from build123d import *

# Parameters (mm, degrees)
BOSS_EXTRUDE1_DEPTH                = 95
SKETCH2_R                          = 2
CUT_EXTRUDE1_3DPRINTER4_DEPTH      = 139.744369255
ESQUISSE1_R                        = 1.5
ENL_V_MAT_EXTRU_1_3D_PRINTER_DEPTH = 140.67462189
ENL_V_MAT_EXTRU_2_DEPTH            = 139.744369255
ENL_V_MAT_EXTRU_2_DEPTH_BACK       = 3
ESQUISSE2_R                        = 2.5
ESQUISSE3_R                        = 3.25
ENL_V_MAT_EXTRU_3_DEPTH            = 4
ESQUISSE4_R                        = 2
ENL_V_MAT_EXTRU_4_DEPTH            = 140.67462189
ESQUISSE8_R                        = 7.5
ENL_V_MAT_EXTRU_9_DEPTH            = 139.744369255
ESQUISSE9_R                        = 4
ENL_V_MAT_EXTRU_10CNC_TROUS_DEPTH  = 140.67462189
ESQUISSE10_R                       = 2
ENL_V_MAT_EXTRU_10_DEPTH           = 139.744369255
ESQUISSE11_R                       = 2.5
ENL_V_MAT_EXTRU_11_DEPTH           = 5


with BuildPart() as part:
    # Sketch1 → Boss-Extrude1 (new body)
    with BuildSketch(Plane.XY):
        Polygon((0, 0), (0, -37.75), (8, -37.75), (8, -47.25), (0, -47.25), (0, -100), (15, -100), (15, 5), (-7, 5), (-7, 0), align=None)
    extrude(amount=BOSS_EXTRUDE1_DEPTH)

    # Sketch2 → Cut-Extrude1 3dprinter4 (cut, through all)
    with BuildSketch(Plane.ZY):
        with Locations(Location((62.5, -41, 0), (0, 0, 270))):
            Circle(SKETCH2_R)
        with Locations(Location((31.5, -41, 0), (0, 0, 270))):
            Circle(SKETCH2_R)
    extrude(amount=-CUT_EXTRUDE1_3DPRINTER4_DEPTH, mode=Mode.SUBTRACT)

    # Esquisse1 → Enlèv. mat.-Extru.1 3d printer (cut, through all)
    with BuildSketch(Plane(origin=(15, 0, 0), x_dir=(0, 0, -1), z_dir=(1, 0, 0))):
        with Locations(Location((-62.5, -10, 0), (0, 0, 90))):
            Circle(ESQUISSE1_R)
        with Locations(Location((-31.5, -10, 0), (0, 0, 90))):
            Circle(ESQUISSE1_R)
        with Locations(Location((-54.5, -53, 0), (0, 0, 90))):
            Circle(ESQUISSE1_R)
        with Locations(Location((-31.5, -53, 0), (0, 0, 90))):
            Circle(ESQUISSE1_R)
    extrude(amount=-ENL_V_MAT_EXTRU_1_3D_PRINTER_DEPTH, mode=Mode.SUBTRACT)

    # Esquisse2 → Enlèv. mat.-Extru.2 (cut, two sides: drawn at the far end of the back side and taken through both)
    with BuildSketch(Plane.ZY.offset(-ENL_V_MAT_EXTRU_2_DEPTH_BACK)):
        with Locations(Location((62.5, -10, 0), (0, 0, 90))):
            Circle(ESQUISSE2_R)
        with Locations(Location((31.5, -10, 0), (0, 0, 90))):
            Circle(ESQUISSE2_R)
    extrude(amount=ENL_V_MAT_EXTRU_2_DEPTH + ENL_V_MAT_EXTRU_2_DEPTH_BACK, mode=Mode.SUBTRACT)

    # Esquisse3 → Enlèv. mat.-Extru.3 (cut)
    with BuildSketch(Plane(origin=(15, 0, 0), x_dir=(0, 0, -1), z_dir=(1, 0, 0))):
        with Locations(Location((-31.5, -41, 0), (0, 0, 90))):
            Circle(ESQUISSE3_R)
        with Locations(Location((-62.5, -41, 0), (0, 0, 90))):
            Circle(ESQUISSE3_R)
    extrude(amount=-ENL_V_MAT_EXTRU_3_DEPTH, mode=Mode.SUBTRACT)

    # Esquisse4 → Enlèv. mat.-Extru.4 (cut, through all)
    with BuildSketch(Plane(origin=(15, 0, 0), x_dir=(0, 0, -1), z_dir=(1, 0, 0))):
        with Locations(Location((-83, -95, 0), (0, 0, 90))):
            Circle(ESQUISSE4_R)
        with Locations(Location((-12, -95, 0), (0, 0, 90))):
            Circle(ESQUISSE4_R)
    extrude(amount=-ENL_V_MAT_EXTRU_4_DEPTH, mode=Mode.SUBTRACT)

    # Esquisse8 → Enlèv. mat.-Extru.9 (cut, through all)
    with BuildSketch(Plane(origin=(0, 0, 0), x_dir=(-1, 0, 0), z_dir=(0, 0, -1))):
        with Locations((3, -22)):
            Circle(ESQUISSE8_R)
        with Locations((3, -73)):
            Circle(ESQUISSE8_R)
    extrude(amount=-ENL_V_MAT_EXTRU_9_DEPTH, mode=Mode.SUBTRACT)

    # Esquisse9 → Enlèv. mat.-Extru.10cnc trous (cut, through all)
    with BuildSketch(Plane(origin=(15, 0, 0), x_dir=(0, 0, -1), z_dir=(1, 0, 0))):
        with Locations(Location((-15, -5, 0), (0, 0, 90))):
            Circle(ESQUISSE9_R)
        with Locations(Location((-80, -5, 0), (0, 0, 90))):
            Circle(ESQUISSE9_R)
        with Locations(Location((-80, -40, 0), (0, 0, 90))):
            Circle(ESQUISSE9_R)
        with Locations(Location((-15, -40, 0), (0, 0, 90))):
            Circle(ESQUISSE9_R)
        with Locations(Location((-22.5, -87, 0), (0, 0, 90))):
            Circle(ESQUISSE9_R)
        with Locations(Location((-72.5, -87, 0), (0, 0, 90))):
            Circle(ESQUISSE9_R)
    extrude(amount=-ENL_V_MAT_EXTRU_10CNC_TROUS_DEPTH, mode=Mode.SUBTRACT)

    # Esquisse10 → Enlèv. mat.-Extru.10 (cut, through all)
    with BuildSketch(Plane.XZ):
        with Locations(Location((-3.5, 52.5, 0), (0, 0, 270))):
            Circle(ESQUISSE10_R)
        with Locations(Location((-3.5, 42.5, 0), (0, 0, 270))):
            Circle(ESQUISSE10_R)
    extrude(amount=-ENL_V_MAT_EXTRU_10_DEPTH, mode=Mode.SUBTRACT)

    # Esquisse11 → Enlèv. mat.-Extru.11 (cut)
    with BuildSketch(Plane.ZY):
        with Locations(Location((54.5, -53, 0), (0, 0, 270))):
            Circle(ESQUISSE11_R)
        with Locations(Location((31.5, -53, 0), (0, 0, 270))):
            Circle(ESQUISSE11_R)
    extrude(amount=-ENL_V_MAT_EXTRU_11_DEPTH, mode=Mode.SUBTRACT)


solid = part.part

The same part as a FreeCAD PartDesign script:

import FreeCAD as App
import Part
import Sketcher

V = App.Vector
Q = App.Units.Quantity

doc = App.newDocument("Part")
body = doc.addObject("PartDesign::Body", "Body")

sketch1 = doc.addObject("Sketcher::SketchObject", "Sketch")
body.addObject(sketch1)
sketch1.AttachmentSupport = (doc.XY_Plane, [""])
sketch1.MapMode = "FlatFace"
sketch1.addGeometry(Part.LineSegment(V(0, 0, 0), V(0, -38, 0)), False)
sketch1.addGeometry(Part.LineSegment(V(0, -38, 0), V(8, -38, 0)), False)
sketch1.addGeometry(Part.LineSegment(V(8, -38, 0), V(8, -47, 0)), False)
sketch1.addGeometry(Part.LineSegment(V(8, -47, 0), V(0, -47, 0)), False)
sketch1.addGeometry(Part.LineSegment(V(0, -47, 0), V(0, -100, 0)), False)
sketch1.addGeometry(Part.LineSegment(V(0, -100, 0), V(15, -100, 0)), False)
sketch1.addGeometry(Part.LineSegment(V(15, -100, 0), V(15, 5, 0)), False)
sketch1.addGeometry(Part.LineSegment(V(15, 5, 0), V(-7, 5, 0)), False)
sketch1.addGeometry(Part.LineSegment(V(-7, 5, 0), V(-7, 0, 0)), False)
sketch1.addGeometry(Part.LineSegment(V(-7, 0, 0), V(0, 0, 0)), False)
sketch1.addConstraint(Sketcher.Constraint("Coincident", 0, 2, 1, 1))
sketch1.addConstraint(Sketcher.Constraint("Coincident", 1, 2, 2, 1))
sketch1.addConstraint(Sketcher.Constraint("Coincident", 2, 2, 3, 1))
sketch1.addConstraint(Sketcher.Constraint("Coincident", 3, 2, 4, 1))
sketch1.addConstraint(Sketcher.Constraint("Coincident", 4, 2, 5, 1))
sketch1.addConstraint(Sketcher.Constraint("Coincident", 5, 2, 6, 1))
sketch1.addConstraint(Sketcher.Constraint("Coincident", 6, 2, 7, 1))
sketch1.addConstraint(Sketcher.Constraint("Coincident", 7, 2, 8, 1))
sketch1.addConstraint(Sketcher.Constraint("Coincident", 8, 2, 9, 1))
sketch1.addConstraint(Sketcher.Constraint("Coincident", 9, 2, 0, 1))
sketch1.addConstraint(Sketcher.Constraint("Vertical", 0))
sketch1.addConstraint(Sketcher.Constraint("Horizontal", 1))
sketch1.addConstraint(Sketcher.Constraint("Vertical", 2))
sketch1.addConstraint(Sketcher.Constraint("Horizontal", 3))
sketch1.addConstraint(Sketcher.Constraint("Vertical", 4))
sketch1.addConstraint(Sketcher.Constraint("Horizontal", 5))
sketch1.addConstraint(Sketcher.Constraint("Vertical", 6))
sketch1.addConstraint(Sketcher.Constraint("Horizontal", 7))
sketch1.addConstraint(Sketcher.Constraint("Vertical", 8))
sketch1.addConstraint(Sketcher.Constraint("Horizontal", 9))
sketch1.addConstraint(Sketcher.Constraint("Coincident", 9, 2, -1, 1))
sketch1.addConstraint(Sketcher.Constraint("PointOnObject", 3, 2, -2))
sketch1.addConstraint(Sketcher.Constraint("DistanceX", 1, 1, 1, 2, Q("8 mm")))
sketch1.addConstraint(Sketcher.Constraint("DistanceX", 5, 1, 5, 2, Q("15 mm")))
sketch1.addConstraint(Sketcher.Constraint("DistanceX", 7, 2, 7, 1, Q("22 mm")))
sketch1.addConstraint(Sketcher.Constraint("DistanceY", 6, 1, 6, 2, Q("105 mm")))
sketch1.addConstraint(Sketcher.Constraint("DistanceY", 8, 2, 8, 1, Q("5 mm")))
sketch1.addConstraint(Sketcher.Constraint("DistanceY", 2, 2, 2, 1, Q("9.5 mm")))
sketch1.addConstraint(Sketcher.Constraint("DistanceY", 0, 2, 0, 1, Q("37.75 mm")))
pad1 = doc.addObject("PartDesign::Pad", "Pad")
body.addObject(pad1)
pad1.Profile = sketch1
pad1.Length = 95

sketch2 = doc.addObject("Sketcher::SketchObject", "Sketch001")
body.addObject(sketch2)
sketch2.AttachmentSupport = (doc.YZ_Plane, [""])
sketch2.MapMode = "FlatFace"
sketch2.addGeometry(Part.Circle(V(-41, 62.5, 0), V(0, 0, 1), 2), False)
sketch2.addGeometry(Part.Circle(V(-41, 31.5, 0), V(0, 0, 1), 2), False)
sketch2.addConstraint(Sketcher.Constraint("Equal", 0, 1))
sketch2.addConstraint(Sketcher.Constraint("Vertical", 0, 3, 1, 3))
sketch2.addConstraint(Sketcher.Constraint("Diameter", 0, Q("4 mm")))
sketch2.addConstraint(Sketcher.Constraint("DistanceX", 0, 3, -1, 1, Q("41 mm")))
sketch2.addConstraint(Sketcher.Constraint("DistanceY", 1, 3, 0, 3, Q("31 mm")))
sketch2.addConstraint(Sketcher.Constraint("DistanceY", -1, 1, 0, 3, Q("62.5 mm")))
pocket1 = doc.addObject("PartDesign::Pocket", "Pocket")
body.addObject(pocket1)
pocket1.Profile = sketch2
pocket1.Type = "ThroughAll"
pocket1.Reversed = True

sketch3 = doc.addObject("Sketcher::SketchObject", "Sketch002")
body.addObject(sketch3)
sketch3.AttachmentSupport = (doc.YZ_Plane, [""])
sketch3.MapMode = "FlatFace"
sketch3.AttachmentOffset = App.Placement(V(0, 0, 15), App.Rotation())
sketch3.addGeometry(Part.Circle(V(-10, 62.5, 0), V(0, 0, 1), 1.5), False)
sketch3.addGeometry(Part.Circle(V(-10, 31.5, 0), V(0, 0, 1), 1.5), False)
sketch3.addGeometry(Part.Circle(V(-53, 54.5, 0), V(0, 0, 1), 1.5), False)
sketch3.addGeometry(Part.Circle(V(-53, 31.5, 0), V(0, 0, 1), 1.5), False)
sketch3.addConstraint(Sketcher.Constraint("Equal", 0, 1))
sketch3.addConstraint(Sketcher.Constraint("Equal", 1, 2))
sketch3.addConstraint(Sketcher.Constraint("Equal", 2, 3))
sketch3.addConstraint(Sketcher.Constraint("Horizontal", 1, 3, 3, 3))
sketch3.addConstraint(Sketcher.Constraint("Vertical", 0, 3, 1, 3))
sketch3.addConstraint(Sketcher.Constraint("Vertical", 2, 3, 3, 3))
sketch3.addConstraint(Sketcher.Constraint("Diameter", 0, Q("3 mm")))
sketch3.addConstraint(Sketcher.Constraint("DistanceX", 0, 3, -1, 1, Q("10 mm")))
sketch3.addConstraint(Sketcher.Constraint("DistanceX", 2, 3, -1, 1, Q("53 mm")))
sketch3.addConstraint(Sketcher.Constraint("DistanceY", 1, 3, 0, 3, Q("31 mm")))
sketch3.addConstraint(Sketcher.Constraint("DistanceY", 2, 3, 0, 3, Q("8 mm")))
sketch3.addConstraint(Sketcher.Constraint("DistanceY", -1, 1, 0, 3, Q("62.5 mm")))
pocket2 = doc.addObject("PartDesign::Pocket", "Pocket001")
body.addObject(pocket2)
pocket2.Profile = sketch3
pocket2.Type = "ThroughAll"

sketch4 = doc.addObject("Sketcher::SketchObject", "Sketch003")
body.addObject(sketch4)
sketch4.AttachmentSupport = (doc.YZ_Plane, [""])
sketch4.MapMode = "FlatFace"
sketch4.addGeometry(Part.Circle(V(-10, 62.5, 0), V(0, 0, 1), 2.5), False)
sketch4.addGeometry(Part.Circle(V(-10, 31.5, 0), V(0, 0, 1), 2.5), False)
sketch4.addConstraint(Sketcher.Constraint("Equal", 0, 1))
sketch4.addConstraint(Sketcher.Constraint("Vertical", 0, 3, 1, 3))
sketch4.addConstraint(Sketcher.Constraint("Diameter", 0, Q("5 mm")))
sketch4.addConstraint(Sketcher.Constraint("DistanceX", 0, 3, -1, 1, Q("10 mm")))
sketch4.addConstraint(Sketcher.Constraint("DistanceY", 1, 3, 0, 3, Q("31 mm")))
sketch4.addConstraint(Sketcher.Constraint("DistanceY", -1, 1, 0, 3, Q("62.5 mm")))
pocket3 = doc.addObject("PartDesign::Pocket", "Pocket002")
body.addObject(pocket3)
pocket3.Profile = sketch4
pocket3.Type = "TwoLengths"
pocket3.Length = 139.744369
pocket3.Length2 = 3

sketch5 = doc.addObject("Sketcher::SketchObject", "Sketch004")
body.addObject(sketch5)
sketch5.AttachmentSupport = (doc.YZ_Plane, [""])
sketch5.MapMode = "FlatFace"
sketch5.AttachmentOffset = App.Placement(V(0, 0, 15), App.Rotation())
sketch5.addGeometry(Part.Circle(V(-41, 31.5, 0), V(0, 0, 1), 3.2), False)
sketch5.addGeometry(Part.Circle(V(-41, 62.5, 0), V(0, 0, 1), 3.2), False)
sketch5.addConstraint(Sketcher.Constraint("Equal", 0, 1))
sketch5.addConstraint(Sketcher.Constraint("Vertical", 0, 3, 1, 3))
sketch5.addConstraint(Sketcher.Constraint("Diameter", 0, Q("6.5 mm")))
sketch5.addConstraint(Sketcher.Constraint("DistanceX", 0, 3, -1, 1, Q("41 mm")))
sketch5.addConstraint(Sketcher.Constraint("DistanceY", 0, 3, 1, 3, Q("31 mm")))
sketch5.addConstraint(Sketcher.Constraint("DistanceY", -1, 1, 0, 3, Q("31.5 mm")))
pocket4 = doc.addObject("PartDesign::Pocket", "Pocket003")
body.addObject(pocket4)
pocket4.Profile = sketch5
pocket4.Length = 4

sketch6 = doc.addObject("Sketcher::SketchObject", "Sketch005")
body.addObject(sketch6)
sketch6.AttachmentSupport = (doc.YZ_Plane, [""])
sketch6.MapMode = "FlatFace"
sketch6.AttachmentOffset = App.Placement(V(0, 0, 15), App.Rotation())
sketch6.addGeometry(Part.Circle(V(-95, 83, 0), V(0, 0, 1), 2), False)
sketch6.addGeometry(Part.Circle(V(-95, 12, 0), V(0, 0, 1), 2), False)
sketch6.addConstraint(Sketcher.Constraint("Equal", 0, 1))
sketch6.addConstraint(Sketcher.Constraint("Vertical", 0, 3, 1, 3))
sketch6.addConstraint(Sketcher.Constraint("Diameter", 0, Q("4 mm")))
sketch6.addConstraint(Sketcher.Constraint("DistanceX", 0, 3, -1, 1, Q("95 mm")))
sketch6.addConstraint(Sketcher.Constraint("DistanceY", -1, 1, 0, 3, Q("83 mm")))
sketch6.addConstraint(Sketcher.Constraint("DistanceY", -1, 1, 1, 3, Q("12 mm")))
pocket5 = doc.addObject("PartDesign::Pocket", "Pocket004")
body.addObject(pocket5)
pocket5.Profile = sketch6
pocket5.Type = "ThroughAll"

sketch7 = doc.addObject("Sketcher::SketchObject", "Sketch006")
body.addObject(sketch7)
sketch7.AttachmentSupport = (doc.XY_Plane, [""])
sketch7.MapMode = "FlatFace"
sketch7.addGeometry(Part.Circle(V(-3, -22, 0), V(0, 0, 1), 8), False)
sketch7.addGeometry(Part.Circle(V(-3, -73, 0), V(0, 0, 1), 8), False)
sketch7.addConstraint(Sketcher.Constraint("Equal", 0, 1))
sketch7.addConstraint(Sketcher.Constraint("Vertical", 0, 3, 1, 3))
sketch7.addConstraint(Sketcher.Constraint("Diameter", 0, Q("15 mm")))
sketch7.addConstraint(Sketcher.Constraint("DistanceX", 0, 3, -1, 1, Q("3 mm")))
sketch7.addConstraint(Sketcher.Constraint("DistanceY", 0, 3, -1, 1, Q("22 mm")))
sketch7.addConstraint(Sketcher.Constraint("DistanceY", 1, 3, -1, 1, Q("73 mm")))
pocket6 = doc.addObject("PartDesign::Pocket", "Pocket005")
body.addObject(pocket6)
pocket6.Profile = sketch7
pocket6.Type = "ThroughAll"
pocket6.Reversed = True

sketch8 = doc.addObject("Sketcher::SketchObject", "Sketch007")
body.addObject(sketch8)
sketch8.AttachmentSupport = (doc.YZ_Plane, [""])
sketch8.MapMode = "FlatFace"
sketch8.AttachmentOffset = App.Placement(V(0, 0, 15), App.Rotation())
sketch8.addGeometry(Part.Circle(V(-5, 15, 0), V(0, 0, 1), 4), False)
sketch8.addGeometry(Part.Circle(V(-5, 80, 0), V(0, 0, 1), 4), False)
sketch8.addGeometry(Part.Circle(V(-40, 80, 0), V(0, 0, 1), 4), False)
sketch8.addGeometry(Part.Circle(V(-40, 15, 0), V(0, 0, 1), 4), False)
sketch8.addGeometry(Part.Circle(V(-87, 22.5, 0), V(0, 0, 1), 4), False)
sketch8.addGeometry(Part.Circle(V(-87, 72.5, 0), V(0, 0, 1), 4), False)
sketch8.addConstraint(Sketcher.Constraint("Equal", 0, 1))
sketch8.addConstraint(Sketcher.Constraint("Equal", 1, 2))
sketch8.addConstraint(Sketcher.Constraint("Equal", 2, 3))
sketch8.addConstraint(Sketcher.Constraint("Equal", 3, 4))
sketch8.addConstraint(Sketcher.Constraint("Equal", 4, 5))
sketch8.addConstraint(Sketcher.Constraint("Horizontal", 1, 3, 2, 3))
sketch8.addConstraint(Sketcher.Constraint("Horizontal", 0, 3, 3, 3))
sketch8.addConstraint(Sketcher.Constraint("Vertical", 0, 3, 1, 3))
sketch8.addConstraint(Sketcher.Constraint("Vertical", 2, 3, 3, 3))
sketch8.addConstraint(Sketcher.Constraint("Vertical", 4, 3, 5, 3))
sketch8.addConstraint(Sketcher.Constraint("Diameter", 0, Q("8 mm")))
sketch8.addConstraint(Sketcher.Constraint("DistanceX", 0, 3, -1, 1, Q("5 mm")))
sketch8.addConstraint(Sketcher.Constraint("DistanceY", -1, 1, 0, 3, Q("15 mm")))
sketch8.addConstraint(Sketcher.Constraint("DistanceY", -1, 1, 1, 3, Q("80 mm")))
sketch8.addConstraint(Sketcher.Constraint("DistanceX", 2, 3, -1, 1, Q("40 mm")))
sketch8.addConstraint(Sketcher.Constraint("DistanceX", 4, 3, -1, 1, Q("87 mm")))
sketch8.addConstraint(Sketcher.Constraint("DistanceY", 4, 3, 5, 3, Q("50 mm")))
sketch8.addConstraint(Sketcher.Constraint("DistanceY", -1, 1, 4, 3, Q("22.5 mm")))
pocket7 = doc.addObject("PartDesign::Pocket", "Pocket006")
body.addObject(pocket7)
pocket7.Profile = sketch8
pocket7.Type = "ThroughAll"

sketch9 = doc.addObject("Sketcher::SketchObject", "Sketch008")
body.addObject(sketch9)
sketch9.AttachmentSupport = (doc.XZ_Plane, [""])
sketch9.MapMode = "FlatFace"
sketch9.addGeometry(Part.Circle(V(-3.5, 52.5, 0), V(0, 0, 1), 2), False)
sketch9.addGeometry(Part.Circle(V(-3.5, 42.5, 0), V(0, 0, 1), 2), False)
sketch9.addConstraint(Sketcher.Constraint("Equal", 0, 1))
sketch9.addConstraint(Sketcher.Constraint("Vertical", 0, 3, 1, 3))
sketch9.addConstraint(Sketcher.Constraint("Diameter", 0, Q("4 mm")))
sketch9.addConstraint(Sketcher.Constraint("DistanceY", 1, 3, 0, 3, Q("10 mm")))
sketch9.addConstraint(Sketcher.Constraint("DistanceX", 0, 3, -1, 1, Q("3.5 mm")))
sketch9.addConstraint(Sketcher.Constraint("DistanceY", -1, 1, 0, 3, Q("52.5 mm")))
pocket8 = doc.addObject("PartDesign::Pocket", "Pocket007")
body.addObject(pocket8)
pocket8.Profile = sketch9
pocket8.Type = "ThroughAll"

sketch10 = doc.addObject("Sketcher::SketchObject", "Sketch009")
body.addObject(sketch10)
sketch10.AttachmentSupport = (doc.YZ_Plane, [""])
sketch10.MapMode = "FlatFace"
sketch10.addGeometry(Part.Circle(V(-53, 54.5, 0), V(0, 0, 1), 2.5), False)
sketch10.addGeometry(Part.Circle(V(-53, 31.5, 0), V(0, 0, 1), 2.5), False)
sketch10.addConstraint(Sketcher.Constraint("Equal", 0, 1))
sketch10.addConstraint(Sketcher.Constraint("Vertical", 0, 3, 1, 3))
sketch10.addConstraint(Sketcher.Constraint("Diameter", 0, Q("5 mm")))
sketch10.addConstraint(Sketcher.Constraint("DistanceX", 0, 3, -1, 1, Q("53 mm")))
sketch10.addConstraint(Sketcher.Constraint("DistanceY", 1, 3, 0, 3, Q("23 mm")))
sketch10.addConstraint(Sketcher.Constraint("DistanceY", -1, 1, 0, 3, Q("54.5 mm")))
pocket9 = doc.addObject("PartDesign::Pocket", "Pocket008")
body.addObject(pocket9)
pocket9.Profile = sketch10
pocket9.Length = 5
pocket9.Reversed = True

doc.recompute()
